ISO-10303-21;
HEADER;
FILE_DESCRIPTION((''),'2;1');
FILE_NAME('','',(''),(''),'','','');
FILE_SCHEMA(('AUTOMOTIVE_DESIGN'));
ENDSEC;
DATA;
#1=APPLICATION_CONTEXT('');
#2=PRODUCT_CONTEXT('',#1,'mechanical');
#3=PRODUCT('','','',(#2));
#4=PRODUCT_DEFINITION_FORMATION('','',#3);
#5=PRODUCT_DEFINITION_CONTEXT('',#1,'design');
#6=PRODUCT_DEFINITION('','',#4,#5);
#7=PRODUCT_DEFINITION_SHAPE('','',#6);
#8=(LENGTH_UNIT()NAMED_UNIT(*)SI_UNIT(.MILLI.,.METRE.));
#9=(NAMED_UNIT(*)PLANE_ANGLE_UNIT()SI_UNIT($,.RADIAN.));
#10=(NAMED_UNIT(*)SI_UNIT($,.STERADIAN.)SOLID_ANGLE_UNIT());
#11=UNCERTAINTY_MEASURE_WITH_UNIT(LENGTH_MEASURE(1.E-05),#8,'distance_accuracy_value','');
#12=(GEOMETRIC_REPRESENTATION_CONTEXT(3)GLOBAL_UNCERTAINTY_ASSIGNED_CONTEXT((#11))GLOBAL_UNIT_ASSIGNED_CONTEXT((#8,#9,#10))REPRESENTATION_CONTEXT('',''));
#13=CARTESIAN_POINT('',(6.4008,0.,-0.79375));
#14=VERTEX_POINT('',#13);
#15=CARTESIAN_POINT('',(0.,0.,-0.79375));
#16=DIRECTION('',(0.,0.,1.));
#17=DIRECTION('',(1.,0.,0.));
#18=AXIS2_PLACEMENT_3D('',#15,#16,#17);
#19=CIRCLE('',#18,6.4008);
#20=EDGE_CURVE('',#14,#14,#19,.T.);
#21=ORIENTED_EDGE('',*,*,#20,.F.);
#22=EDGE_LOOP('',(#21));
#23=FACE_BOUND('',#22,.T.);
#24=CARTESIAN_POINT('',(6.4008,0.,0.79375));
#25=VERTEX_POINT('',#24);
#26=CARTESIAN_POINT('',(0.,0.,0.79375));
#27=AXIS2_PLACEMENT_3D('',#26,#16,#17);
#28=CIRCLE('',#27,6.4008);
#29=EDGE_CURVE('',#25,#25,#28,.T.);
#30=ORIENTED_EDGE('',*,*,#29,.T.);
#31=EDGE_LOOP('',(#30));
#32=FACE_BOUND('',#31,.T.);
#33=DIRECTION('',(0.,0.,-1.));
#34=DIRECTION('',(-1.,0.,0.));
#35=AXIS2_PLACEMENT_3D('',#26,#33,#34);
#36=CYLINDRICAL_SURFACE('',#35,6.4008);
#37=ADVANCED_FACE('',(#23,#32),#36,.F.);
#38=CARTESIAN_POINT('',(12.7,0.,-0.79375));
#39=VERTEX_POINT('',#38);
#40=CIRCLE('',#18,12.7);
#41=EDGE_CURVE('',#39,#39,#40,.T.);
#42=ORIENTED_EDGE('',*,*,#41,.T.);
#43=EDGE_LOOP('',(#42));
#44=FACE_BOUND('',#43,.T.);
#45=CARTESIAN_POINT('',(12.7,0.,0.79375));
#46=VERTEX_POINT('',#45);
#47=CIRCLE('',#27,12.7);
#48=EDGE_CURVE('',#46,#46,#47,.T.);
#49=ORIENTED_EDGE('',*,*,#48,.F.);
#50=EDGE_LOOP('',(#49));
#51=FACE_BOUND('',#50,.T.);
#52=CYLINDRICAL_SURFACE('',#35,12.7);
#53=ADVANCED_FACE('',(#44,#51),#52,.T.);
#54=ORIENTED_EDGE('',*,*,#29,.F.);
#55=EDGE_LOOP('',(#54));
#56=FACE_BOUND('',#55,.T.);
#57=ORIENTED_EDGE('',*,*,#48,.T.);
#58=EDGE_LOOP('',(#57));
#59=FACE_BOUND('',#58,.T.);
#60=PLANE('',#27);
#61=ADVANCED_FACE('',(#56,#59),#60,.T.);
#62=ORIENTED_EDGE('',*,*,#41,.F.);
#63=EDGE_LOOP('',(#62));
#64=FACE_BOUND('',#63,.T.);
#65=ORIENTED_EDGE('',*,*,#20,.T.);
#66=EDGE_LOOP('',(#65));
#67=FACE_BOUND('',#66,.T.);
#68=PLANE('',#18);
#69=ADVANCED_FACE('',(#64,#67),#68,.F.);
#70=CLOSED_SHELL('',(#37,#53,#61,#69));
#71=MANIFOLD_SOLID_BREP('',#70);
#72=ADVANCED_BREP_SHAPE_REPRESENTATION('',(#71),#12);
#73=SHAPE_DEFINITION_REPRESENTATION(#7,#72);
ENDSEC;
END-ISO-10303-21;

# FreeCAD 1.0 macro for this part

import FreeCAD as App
import Part
import Sketcher

V = App.Vector
Q = App.Units.Quantity

doc = App.newDocument("Part")
body = doc.addObject("PartDesign::Body", "Body")

sketch1 = body.newObject("Sketcher::SketchObject", "Sketch")
sketch1.AttachmentSupport = (doc.getObject("XY_Plane"), [""])
sketch1.MapMode = "FlatFace"
sketch1.addGeometry([
    Part.Circle(V(0, 0, 0), V(0, 0, 1), 12.7),
    Part.Circle(V(0, 0, 0), V(0, 0, 1), 6.4008),
], False)
sketch1.addConstraint([
    Sketcher.Constraint("Coincident", 0, 3, -1, 1),
    Sketcher.Constraint("Coincident", 1, 3, -1, 1),
    Sketcher.Constraint("Diameter", 0, Q("1 in")),
    Sketcher.Constraint("Diameter", 1, Q("0.504 in")),
])
pad1 = body.newObject("PartDesign::Pad", "Pad")
pad1.Profile = sketch1
pad1.Length = Q("0.0625 in")
pad1.Midplane = True

doc.recompute()
